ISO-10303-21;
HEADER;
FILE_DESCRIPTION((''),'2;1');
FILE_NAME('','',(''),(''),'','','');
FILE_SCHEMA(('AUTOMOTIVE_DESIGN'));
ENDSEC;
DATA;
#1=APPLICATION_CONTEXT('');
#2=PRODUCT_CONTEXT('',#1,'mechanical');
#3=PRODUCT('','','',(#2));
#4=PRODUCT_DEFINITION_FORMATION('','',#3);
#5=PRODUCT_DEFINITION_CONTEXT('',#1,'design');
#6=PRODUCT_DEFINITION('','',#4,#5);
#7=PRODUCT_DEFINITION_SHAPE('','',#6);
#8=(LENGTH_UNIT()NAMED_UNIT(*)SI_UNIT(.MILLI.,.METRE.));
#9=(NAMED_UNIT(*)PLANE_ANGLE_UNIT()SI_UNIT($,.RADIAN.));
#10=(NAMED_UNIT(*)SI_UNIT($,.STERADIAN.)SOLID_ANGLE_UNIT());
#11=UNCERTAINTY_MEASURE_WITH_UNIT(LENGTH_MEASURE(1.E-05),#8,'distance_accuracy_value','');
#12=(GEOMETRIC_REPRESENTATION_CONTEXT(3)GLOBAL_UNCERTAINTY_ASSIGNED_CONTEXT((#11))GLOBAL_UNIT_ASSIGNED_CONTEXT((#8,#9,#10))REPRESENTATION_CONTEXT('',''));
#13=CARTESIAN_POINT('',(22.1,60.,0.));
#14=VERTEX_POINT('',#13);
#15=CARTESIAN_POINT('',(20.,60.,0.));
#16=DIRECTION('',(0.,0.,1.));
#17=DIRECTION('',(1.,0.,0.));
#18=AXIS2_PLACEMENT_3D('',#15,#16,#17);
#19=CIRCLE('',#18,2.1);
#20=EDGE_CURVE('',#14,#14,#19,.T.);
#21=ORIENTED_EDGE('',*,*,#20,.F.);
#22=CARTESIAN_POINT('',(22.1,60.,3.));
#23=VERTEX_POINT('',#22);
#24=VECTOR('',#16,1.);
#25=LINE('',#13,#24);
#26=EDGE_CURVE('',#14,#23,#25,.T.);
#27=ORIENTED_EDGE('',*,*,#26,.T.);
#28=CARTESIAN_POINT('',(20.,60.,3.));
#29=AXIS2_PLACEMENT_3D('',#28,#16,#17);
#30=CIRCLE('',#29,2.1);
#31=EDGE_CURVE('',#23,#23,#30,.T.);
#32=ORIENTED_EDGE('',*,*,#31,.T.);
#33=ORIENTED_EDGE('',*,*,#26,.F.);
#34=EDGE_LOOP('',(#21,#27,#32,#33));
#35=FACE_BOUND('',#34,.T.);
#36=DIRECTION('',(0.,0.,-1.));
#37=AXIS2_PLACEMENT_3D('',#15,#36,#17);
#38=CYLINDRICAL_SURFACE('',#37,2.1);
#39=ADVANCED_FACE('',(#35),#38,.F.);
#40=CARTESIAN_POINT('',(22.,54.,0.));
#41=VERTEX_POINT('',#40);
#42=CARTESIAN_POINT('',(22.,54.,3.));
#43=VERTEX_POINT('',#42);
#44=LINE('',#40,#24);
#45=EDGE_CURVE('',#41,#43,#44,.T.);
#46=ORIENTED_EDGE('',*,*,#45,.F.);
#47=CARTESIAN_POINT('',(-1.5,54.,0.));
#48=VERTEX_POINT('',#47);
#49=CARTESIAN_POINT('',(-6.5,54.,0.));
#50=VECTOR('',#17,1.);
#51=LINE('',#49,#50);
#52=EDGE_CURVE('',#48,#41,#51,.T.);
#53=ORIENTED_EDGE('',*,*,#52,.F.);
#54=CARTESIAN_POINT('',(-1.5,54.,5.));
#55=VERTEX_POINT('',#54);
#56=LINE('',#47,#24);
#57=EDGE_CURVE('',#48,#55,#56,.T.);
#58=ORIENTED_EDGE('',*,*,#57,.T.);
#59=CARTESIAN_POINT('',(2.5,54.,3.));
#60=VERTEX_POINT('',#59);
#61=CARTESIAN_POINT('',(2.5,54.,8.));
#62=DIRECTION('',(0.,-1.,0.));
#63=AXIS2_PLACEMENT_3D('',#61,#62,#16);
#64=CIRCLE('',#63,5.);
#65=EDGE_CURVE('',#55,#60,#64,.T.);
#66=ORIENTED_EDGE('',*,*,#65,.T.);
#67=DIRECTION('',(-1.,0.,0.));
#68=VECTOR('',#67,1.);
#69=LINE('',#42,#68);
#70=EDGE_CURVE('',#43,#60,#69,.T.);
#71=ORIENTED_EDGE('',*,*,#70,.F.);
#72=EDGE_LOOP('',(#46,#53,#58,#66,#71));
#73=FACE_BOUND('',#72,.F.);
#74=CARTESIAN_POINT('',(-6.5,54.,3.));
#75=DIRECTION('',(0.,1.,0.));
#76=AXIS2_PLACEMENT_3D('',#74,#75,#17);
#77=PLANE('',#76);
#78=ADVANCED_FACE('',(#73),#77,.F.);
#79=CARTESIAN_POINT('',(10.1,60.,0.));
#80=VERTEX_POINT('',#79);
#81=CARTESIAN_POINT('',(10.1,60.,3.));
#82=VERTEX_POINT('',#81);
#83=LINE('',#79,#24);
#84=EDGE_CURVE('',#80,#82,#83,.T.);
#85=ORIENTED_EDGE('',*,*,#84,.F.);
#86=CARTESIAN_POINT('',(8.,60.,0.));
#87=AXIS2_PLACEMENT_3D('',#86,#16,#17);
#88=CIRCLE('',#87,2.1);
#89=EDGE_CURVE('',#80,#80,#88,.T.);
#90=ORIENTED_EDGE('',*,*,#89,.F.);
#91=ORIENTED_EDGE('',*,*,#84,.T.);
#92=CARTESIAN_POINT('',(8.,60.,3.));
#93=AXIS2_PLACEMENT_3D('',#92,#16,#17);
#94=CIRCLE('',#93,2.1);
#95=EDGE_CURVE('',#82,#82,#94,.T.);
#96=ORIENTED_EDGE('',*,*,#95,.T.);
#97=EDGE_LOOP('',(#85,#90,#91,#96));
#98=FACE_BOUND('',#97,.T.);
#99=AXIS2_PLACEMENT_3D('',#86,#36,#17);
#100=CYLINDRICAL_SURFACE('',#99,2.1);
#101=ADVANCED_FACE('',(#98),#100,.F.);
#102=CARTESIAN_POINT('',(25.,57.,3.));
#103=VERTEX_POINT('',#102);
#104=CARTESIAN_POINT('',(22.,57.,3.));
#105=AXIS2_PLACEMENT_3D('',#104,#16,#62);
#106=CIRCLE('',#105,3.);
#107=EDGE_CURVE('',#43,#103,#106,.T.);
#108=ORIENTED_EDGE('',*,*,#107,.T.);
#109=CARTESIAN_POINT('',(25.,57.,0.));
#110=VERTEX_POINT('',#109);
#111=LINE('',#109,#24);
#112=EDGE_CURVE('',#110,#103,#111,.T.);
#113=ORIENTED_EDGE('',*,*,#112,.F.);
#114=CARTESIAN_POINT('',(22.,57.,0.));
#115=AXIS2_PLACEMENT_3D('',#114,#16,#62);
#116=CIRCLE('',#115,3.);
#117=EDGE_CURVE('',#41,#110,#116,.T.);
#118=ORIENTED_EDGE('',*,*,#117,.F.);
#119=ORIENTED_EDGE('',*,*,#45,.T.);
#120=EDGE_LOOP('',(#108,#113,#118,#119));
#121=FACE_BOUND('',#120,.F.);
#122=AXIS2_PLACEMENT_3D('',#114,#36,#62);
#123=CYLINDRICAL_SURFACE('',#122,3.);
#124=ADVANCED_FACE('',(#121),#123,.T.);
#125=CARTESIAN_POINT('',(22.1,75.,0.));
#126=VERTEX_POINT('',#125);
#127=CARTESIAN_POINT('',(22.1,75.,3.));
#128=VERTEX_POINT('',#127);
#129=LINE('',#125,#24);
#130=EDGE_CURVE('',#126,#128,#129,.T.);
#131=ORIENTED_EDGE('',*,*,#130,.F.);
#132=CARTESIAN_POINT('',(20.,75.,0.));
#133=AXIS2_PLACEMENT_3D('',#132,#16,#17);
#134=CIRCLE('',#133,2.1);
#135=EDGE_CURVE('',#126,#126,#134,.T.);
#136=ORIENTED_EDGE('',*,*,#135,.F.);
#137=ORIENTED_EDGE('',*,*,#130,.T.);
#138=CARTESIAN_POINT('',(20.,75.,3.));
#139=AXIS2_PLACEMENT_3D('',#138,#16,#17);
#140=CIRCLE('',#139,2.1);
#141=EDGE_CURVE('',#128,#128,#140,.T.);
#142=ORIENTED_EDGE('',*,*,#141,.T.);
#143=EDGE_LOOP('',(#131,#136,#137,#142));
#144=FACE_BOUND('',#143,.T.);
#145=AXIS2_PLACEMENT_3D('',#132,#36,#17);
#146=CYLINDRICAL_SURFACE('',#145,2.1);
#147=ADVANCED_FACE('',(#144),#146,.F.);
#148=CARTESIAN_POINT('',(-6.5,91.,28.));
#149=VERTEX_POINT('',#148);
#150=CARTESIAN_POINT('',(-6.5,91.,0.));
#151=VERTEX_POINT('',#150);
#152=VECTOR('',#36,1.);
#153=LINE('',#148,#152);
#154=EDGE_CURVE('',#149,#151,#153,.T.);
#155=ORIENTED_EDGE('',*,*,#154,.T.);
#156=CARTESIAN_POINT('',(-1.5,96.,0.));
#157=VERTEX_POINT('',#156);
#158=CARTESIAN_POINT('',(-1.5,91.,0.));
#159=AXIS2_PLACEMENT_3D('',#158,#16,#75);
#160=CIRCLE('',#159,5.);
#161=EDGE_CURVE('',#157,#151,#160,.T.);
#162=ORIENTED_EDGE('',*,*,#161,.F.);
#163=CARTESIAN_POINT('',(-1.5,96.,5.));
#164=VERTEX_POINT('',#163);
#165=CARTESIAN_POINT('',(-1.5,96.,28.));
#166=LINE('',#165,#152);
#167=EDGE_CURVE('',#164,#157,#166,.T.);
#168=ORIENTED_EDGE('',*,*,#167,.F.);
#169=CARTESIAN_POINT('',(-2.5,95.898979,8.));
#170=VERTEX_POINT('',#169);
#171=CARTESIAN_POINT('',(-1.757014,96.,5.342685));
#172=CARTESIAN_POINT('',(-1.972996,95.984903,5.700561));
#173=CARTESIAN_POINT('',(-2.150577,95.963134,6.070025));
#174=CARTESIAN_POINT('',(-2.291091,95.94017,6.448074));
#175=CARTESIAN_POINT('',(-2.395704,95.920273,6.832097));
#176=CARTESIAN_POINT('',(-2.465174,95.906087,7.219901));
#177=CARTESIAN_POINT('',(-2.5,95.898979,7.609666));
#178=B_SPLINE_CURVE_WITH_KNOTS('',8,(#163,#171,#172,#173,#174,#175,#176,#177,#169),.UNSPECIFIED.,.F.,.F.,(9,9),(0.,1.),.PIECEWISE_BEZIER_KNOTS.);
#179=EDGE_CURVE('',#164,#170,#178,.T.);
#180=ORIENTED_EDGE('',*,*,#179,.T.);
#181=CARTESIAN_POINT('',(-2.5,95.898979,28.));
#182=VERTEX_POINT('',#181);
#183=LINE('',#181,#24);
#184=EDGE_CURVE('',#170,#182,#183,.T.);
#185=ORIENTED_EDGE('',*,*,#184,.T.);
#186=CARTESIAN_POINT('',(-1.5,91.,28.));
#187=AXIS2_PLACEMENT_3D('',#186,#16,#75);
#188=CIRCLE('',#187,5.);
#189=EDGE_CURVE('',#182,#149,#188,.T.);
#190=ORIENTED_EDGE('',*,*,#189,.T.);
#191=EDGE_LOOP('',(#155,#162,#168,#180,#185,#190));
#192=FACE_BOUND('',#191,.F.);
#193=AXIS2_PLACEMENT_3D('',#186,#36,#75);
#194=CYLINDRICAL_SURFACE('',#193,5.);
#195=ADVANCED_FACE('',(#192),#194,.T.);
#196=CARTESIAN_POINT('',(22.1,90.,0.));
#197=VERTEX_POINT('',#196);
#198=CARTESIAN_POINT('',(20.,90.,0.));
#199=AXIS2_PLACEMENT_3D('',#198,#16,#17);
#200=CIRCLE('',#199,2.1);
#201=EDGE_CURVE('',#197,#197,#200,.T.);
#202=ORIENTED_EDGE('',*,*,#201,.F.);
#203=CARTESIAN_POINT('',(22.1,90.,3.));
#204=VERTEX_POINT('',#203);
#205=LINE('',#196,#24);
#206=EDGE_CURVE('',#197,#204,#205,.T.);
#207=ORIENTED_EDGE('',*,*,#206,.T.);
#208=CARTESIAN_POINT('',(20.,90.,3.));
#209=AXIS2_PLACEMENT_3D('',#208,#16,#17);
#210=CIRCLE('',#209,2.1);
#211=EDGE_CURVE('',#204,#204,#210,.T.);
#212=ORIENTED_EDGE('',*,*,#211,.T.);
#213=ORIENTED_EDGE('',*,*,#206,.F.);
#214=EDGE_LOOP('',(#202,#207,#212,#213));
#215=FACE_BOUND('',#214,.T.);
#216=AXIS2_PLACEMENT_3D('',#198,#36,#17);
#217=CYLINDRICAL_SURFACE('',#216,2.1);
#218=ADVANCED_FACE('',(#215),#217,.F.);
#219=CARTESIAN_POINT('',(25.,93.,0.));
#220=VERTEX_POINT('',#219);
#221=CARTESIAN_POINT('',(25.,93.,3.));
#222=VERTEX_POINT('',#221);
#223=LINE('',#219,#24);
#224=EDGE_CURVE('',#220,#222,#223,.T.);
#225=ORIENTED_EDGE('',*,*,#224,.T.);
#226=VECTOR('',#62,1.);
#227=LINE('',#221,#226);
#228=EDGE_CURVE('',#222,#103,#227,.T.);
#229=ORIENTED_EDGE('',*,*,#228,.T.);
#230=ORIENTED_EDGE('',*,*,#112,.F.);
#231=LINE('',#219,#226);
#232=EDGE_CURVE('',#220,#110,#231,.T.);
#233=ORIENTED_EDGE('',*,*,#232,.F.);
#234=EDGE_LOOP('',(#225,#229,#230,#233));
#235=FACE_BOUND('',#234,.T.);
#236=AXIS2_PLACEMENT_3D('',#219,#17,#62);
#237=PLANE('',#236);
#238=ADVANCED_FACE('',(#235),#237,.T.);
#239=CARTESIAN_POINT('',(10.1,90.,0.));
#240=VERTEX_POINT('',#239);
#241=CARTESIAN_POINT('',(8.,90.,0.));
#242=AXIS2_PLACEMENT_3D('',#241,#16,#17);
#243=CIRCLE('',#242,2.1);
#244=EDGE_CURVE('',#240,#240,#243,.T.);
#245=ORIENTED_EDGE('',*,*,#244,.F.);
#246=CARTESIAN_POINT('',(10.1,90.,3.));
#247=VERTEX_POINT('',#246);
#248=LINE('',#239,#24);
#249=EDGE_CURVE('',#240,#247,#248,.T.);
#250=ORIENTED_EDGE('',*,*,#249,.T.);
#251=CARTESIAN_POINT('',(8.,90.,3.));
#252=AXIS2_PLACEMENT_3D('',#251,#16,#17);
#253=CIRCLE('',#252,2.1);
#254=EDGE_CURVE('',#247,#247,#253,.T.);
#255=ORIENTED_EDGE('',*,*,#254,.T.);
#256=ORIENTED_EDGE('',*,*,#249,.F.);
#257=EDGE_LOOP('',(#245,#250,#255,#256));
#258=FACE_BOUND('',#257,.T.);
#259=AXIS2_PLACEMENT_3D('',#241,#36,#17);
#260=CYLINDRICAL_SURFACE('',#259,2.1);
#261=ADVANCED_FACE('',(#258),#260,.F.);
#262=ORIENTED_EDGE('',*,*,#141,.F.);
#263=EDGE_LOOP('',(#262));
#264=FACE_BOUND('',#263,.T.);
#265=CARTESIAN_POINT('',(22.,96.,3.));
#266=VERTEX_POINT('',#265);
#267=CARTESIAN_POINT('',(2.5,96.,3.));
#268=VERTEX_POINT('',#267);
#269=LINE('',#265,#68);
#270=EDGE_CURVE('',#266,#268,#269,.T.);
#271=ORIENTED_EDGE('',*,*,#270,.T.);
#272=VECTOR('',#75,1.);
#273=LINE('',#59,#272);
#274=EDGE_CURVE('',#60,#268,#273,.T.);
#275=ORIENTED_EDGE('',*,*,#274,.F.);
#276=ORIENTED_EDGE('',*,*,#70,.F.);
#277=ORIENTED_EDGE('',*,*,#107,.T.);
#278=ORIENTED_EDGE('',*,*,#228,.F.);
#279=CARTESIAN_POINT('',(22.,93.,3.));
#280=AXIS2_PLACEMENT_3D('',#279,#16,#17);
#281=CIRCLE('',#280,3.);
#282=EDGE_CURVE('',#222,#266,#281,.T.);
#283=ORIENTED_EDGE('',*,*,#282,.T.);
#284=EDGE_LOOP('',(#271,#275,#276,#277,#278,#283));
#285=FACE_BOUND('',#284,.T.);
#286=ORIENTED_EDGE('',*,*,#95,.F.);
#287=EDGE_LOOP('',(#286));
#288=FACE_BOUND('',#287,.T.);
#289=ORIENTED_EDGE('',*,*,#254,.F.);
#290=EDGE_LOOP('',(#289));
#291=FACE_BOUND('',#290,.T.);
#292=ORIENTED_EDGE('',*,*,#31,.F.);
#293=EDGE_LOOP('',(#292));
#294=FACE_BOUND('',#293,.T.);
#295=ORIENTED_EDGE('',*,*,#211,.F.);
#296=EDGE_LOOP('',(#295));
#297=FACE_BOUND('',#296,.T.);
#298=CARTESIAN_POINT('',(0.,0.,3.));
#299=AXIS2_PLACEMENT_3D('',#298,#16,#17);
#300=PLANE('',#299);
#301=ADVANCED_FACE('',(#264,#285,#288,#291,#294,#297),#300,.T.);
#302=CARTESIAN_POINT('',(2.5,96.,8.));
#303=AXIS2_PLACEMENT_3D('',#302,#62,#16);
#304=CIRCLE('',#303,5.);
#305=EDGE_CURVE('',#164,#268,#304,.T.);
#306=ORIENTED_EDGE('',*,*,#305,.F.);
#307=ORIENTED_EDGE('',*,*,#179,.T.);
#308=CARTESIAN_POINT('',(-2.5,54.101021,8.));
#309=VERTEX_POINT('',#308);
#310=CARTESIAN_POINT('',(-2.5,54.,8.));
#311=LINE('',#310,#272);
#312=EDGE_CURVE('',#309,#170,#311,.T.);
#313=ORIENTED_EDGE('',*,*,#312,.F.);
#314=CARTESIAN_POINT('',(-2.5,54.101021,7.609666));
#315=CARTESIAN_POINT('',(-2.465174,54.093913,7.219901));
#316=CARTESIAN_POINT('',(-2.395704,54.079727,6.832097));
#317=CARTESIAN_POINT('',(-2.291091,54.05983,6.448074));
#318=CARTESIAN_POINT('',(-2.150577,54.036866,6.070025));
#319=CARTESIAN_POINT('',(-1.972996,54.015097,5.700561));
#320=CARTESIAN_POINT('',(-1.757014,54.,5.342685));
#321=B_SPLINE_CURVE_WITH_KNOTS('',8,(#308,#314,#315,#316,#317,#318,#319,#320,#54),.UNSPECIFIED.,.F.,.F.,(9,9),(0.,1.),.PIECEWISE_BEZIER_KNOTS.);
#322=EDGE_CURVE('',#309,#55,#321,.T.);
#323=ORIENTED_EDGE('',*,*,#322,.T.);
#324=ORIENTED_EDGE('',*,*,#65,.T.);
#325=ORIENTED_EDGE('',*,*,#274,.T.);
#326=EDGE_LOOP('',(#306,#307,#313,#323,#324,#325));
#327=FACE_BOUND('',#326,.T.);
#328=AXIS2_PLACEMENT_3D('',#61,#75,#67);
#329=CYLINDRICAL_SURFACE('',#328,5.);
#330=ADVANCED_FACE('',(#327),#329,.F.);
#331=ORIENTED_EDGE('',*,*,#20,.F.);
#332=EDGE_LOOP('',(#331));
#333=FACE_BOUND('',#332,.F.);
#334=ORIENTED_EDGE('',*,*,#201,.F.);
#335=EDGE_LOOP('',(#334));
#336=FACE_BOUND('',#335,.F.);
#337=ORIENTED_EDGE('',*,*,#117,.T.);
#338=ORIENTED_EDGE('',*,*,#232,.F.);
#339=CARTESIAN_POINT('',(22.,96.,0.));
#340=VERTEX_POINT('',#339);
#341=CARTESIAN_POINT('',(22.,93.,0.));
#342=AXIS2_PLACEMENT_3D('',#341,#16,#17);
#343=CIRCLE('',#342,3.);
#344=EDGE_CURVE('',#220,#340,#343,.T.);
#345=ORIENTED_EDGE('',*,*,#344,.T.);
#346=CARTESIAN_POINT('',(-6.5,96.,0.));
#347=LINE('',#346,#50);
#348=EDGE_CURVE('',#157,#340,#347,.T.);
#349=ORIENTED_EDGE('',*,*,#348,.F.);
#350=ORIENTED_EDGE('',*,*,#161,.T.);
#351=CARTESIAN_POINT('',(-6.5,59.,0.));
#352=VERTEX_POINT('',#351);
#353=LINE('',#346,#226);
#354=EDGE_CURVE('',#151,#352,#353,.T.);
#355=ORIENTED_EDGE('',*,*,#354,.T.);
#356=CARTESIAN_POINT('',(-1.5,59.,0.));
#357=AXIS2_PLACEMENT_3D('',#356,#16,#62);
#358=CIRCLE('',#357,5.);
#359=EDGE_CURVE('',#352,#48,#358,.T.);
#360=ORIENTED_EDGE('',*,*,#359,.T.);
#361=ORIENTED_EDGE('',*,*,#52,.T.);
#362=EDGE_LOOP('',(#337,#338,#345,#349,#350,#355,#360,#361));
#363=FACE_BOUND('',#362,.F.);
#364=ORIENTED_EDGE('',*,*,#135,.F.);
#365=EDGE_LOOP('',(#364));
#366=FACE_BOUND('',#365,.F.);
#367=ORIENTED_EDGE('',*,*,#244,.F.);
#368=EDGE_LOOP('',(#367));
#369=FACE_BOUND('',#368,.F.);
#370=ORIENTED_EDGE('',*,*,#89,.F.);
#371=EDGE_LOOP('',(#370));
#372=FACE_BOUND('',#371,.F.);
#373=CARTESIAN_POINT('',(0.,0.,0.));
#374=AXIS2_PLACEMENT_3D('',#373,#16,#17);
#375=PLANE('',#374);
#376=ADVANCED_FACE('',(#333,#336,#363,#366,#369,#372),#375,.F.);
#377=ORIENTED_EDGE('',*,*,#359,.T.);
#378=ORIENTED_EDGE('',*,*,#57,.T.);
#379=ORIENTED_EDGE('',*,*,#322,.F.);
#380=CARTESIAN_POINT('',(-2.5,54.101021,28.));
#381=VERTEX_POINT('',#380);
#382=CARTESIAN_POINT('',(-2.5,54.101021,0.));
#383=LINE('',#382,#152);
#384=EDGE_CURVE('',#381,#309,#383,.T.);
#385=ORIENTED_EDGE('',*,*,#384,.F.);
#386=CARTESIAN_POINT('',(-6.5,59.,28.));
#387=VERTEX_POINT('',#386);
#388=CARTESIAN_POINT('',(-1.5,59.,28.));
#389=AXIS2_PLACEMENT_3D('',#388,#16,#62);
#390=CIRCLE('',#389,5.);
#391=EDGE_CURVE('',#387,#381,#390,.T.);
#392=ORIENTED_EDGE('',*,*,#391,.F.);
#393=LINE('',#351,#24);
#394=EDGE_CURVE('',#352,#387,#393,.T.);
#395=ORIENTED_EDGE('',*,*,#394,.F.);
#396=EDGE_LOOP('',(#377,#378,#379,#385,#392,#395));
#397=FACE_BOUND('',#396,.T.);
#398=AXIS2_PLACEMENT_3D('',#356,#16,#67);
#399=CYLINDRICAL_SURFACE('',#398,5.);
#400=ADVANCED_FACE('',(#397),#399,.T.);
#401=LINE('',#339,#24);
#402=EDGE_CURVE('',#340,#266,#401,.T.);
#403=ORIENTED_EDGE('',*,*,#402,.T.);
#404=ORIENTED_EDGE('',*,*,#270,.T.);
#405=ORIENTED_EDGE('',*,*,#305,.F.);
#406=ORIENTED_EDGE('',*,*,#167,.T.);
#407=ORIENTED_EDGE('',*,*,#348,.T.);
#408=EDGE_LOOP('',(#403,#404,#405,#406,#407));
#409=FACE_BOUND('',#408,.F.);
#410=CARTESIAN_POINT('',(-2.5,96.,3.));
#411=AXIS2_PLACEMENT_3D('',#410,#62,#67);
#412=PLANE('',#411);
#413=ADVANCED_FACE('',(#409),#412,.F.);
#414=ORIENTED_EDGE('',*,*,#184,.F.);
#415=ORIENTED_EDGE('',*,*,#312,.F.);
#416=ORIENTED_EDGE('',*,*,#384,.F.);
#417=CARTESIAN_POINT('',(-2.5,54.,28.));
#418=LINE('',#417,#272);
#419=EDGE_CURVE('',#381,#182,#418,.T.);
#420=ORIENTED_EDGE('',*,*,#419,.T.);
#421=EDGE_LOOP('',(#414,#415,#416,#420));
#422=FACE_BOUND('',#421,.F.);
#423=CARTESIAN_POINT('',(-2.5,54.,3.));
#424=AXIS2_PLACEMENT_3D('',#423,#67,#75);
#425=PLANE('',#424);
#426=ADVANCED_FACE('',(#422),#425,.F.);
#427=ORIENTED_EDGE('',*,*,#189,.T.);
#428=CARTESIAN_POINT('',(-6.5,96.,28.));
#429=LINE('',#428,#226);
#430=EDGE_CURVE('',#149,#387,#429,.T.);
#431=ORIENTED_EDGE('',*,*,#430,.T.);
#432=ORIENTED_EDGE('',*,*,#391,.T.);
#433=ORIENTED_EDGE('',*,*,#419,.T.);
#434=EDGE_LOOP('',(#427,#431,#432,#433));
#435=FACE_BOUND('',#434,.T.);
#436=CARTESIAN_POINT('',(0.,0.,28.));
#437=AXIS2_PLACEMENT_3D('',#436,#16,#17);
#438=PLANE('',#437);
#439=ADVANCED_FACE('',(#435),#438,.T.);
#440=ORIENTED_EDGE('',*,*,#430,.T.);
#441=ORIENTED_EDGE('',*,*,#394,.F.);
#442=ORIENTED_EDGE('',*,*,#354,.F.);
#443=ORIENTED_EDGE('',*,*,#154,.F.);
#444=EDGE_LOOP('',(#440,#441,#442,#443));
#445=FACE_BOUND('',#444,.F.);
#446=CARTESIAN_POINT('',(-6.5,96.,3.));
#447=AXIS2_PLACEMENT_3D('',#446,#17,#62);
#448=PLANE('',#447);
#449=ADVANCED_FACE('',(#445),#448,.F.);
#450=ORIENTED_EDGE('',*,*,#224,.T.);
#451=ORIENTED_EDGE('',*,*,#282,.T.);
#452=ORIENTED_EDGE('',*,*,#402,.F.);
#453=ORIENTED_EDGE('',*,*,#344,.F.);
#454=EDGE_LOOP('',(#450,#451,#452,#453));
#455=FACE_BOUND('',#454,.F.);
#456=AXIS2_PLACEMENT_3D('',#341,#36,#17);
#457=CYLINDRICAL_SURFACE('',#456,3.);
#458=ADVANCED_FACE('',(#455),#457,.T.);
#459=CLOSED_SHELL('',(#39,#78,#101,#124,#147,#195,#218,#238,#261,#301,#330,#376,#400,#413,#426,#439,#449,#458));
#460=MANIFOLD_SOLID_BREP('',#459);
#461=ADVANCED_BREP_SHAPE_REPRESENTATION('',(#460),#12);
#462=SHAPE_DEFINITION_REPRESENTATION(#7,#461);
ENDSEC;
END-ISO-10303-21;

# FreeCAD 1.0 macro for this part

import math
import FreeCAD as App
import Part
import Sketcher

V = App.Vector
Q = App.Units.Quantity


def edges_at(feature, points):
    """Names of the edges that pass closest to the given points."""
    edges = feature.Shape.Edges
    near = lambda p: min(range(len(edges)), key=lambda i: edges[i].distToShape(Part.Vertex(*p))[0])
    return sorted({f"Edge{near(p) + 1}" for p in points})


def add_polygon(sketch, points):
    """Adds a closed chain of lines whose ends are joined by coincident constraints."""
    first, n = sketch.GeometryCount, len(points)
    for a, b in zip(points, points[1:] + points[:1]):
        sketch.addGeometry(Part.LineSegment(App.Vector(*a, 0), App.Vector(*b, 0)), False)
    for i in range(n):
        sketch.addConstraint(Sketcher.Constraint("Coincident", first + i, 2, first + (i + 1) % n, 1))

doc = App.newDocument("Part")
body = doc.addObject("PartDesign::Body", "Body")

# Sketch on XY plane
sketch1 = doc.addObject("Sketcher::SketchObject", "Sketch")
body.addObject(sketch1)
sketch1.AttachmentSupport = (doc.XY_Plane, [""])
sketch1.MapMode = "FlatFace"
sketch1.addGeometry([
    Part.ArcOfCircle(Part.Circle(V(22, 57, 0), V(0, 0, 1), 3), math.radians(-90), math.radians(0)),  # 0
    Part.LineSegment(V(25, 57, 0), V(25, 93, 0)),  # 1
    Part.ArcOfCircle(Part.Circle(V(22, 93, 0), V(0, 0, 1), 3), math.radians(0), math.radians(90)),  # 2
    Part.LineSegment(V(22, 96, 0), V(-6.5, 96, 0)),  # 3
    Part.LineSegment(V(-6.5, 96, 0), V(-6.5, 54, 0)),  # 4
    Part.LineSegment(V(-6.5, 54, 0), V(22, 54, 0)),  # 5
    Part.Circle(V(8, 60, 0), V(0, 0, 1), 2.1),  # 6
    Part.Circle(V(20, 60, 0), V(0, 0, 1), 2.1),  # 7
    Part.Circle(V(8, 90, 0), V(0, 0, 1), 2.1),  # 8
    Part.Circle(V(20, 75, 0), V(0, 0, 1), 2.1),  # 9
    Part.Circle(V(20, 90, 0), V(0, 0, 1), 2.1),  # 10
], False)
sketch1.addConstraint([
    Sketcher.Constraint("Tangent", 0, 2, 1, 1),
    Sketcher.Constraint("Tangent", 1, 2, 2, 1),
    Sketcher.Constraint("Tangent", 2, 2, 3, 1),
    Sketcher.Constraint("Coincident", 3, 2, 4, 1),
    Sketcher.Constraint("Coincident", 4, 2, 5, 1),
    Sketcher.Constraint("Tangent", 5, 2, 0, 1),
    Sketcher.Constraint("Vertical", 1),
    Sketcher.Constraint("Horizontal", 3),
    Sketcher.Constraint("Vertical", 4),
    Sketcher.Constraint("Horizontal", 5),
    Sketcher.Constraint("Equal", 0, 2),
    Sketcher.Constraint("Equal", 6, 7),
    Sketcher.Constraint("Equal", 7, 8),
    Sketcher.Constraint("Equal", 8, 9),
    Sketcher.Constraint("Equal", 9, 10),
    Sketcher.Constraint("Horizontal", 6, 3, 7, 3),
    Sketcher.Constraint("Horizontal", 8, 3, 10, 3),
    Sketcher.Constraint("Vertical", 6, 3, 8, 3),
    Sketcher.Constraint("Vertical", 7, 3, 9, 3),
    Sketcher.Constraint("Vertical", 9, 3, 10, 3),
    Sketcher.Constraint("Diameter", 6, Q("4.2 mm")),
    Sketcher.Constraint("Radius", 0, Q("3 mm")),
    Sketcher.Constraint("DistanceX", 3, 2, -1, 1, Q("6.5 mm")),
    Sketcher.Constraint("DistanceY", 1, 1, 1, 2, Q("36 mm")),
    Sketcher.Constraint("DistanceX", 3, 2, 3, 1, Q("28.5 mm")),
    Sketcher.Constraint("DistanceY", -1, 1, 0, 3, Q("57 mm")),
    Sketcher.Constraint("DistanceX", -1, 1, 6, 3, Q("8 mm")),
    Sketcher.Constraint("DistanceY", -1, 1, 6, 3, Q("60 mm")),
    Sketcher.Constraint("DistanceX", -1, 1, 7, 3, Q("20 mm")),
    Sketcher.Constraint("DistanceY", -1, 1, 8, 3, Q("90 mm")),
    Sketcher.Constraint("DistanceY", -1, 1, 9, 3, Q("75 mm")),
])
pad1 = doc.addObject("PartDesign::Pad", "Pad")
body.addObject(pad1)
pad1.Profile = sketch1
pad1.Length = 3

# Sketch on XY plane
sketch2 = doc.addObject("Sketcher::SketchObject", "Sketch001")
body.addObject(sketch2)
sketch2.AttachmentSupport = (doc.XY_Plane, [""])
sketch2.MapMode = "FlatFace"
sketch2.AttachmentOffset = App.Placement(V(0, 0, 3), App.Rotation())
add_polygon(sketch2, [(-6.5, 96), (-6.5, 54), (-2.5, 54), (-2.5, 96)])  # lines 0-3
sketch2.addConstraint([
    Sketcher.Constraint("Vertical", 0),
    Sketcher.Constraint("Horizontal", 1),
    Sketcher.Constraint("Vertical", 2),
    Sketcher.Constraint("Horizontal", 3),
    Sketcher.Constraint("DistanceX", 1, 1, 1, 2, Q("4 mm")),
    Sketcher.Constraint("DistanceY", 0, 2, 0, 1, Q("42 mm")),
    Sketcher.Constraint("DistanceY", -1, 1, 0, 2, Q("54 mm")),
    Sketcher.Constraint("DistanceX", 0, 2, -1, 1, Q("6.5 mm")),
])
pad2 = doc.addObject("PartDesign::Pad", "Pad001")
body.addObject(pad2)
pad2.Profile = sketch2
pad2.Length = 25
doc.recompute()

fillet = doc.addObject("PartDesign::Fillet", "Fillet")
body.addObject(fillet)
fillet.Base = (pad2, edges_at(pad2, [(-2.5, 75, 3)]))
fillet.Radius = 5
doc.recompute()

fillet2 = doc.addObject("PartDesign::Fillet", "Fillet001")
body.addObject(fillet2)
fillet2.Base = (fillet, edges_at(fillet, [(-6.5, 96, 14), (-6.5, 54, 14)]))
fillet2.Radius = 5

doc.recompute()
